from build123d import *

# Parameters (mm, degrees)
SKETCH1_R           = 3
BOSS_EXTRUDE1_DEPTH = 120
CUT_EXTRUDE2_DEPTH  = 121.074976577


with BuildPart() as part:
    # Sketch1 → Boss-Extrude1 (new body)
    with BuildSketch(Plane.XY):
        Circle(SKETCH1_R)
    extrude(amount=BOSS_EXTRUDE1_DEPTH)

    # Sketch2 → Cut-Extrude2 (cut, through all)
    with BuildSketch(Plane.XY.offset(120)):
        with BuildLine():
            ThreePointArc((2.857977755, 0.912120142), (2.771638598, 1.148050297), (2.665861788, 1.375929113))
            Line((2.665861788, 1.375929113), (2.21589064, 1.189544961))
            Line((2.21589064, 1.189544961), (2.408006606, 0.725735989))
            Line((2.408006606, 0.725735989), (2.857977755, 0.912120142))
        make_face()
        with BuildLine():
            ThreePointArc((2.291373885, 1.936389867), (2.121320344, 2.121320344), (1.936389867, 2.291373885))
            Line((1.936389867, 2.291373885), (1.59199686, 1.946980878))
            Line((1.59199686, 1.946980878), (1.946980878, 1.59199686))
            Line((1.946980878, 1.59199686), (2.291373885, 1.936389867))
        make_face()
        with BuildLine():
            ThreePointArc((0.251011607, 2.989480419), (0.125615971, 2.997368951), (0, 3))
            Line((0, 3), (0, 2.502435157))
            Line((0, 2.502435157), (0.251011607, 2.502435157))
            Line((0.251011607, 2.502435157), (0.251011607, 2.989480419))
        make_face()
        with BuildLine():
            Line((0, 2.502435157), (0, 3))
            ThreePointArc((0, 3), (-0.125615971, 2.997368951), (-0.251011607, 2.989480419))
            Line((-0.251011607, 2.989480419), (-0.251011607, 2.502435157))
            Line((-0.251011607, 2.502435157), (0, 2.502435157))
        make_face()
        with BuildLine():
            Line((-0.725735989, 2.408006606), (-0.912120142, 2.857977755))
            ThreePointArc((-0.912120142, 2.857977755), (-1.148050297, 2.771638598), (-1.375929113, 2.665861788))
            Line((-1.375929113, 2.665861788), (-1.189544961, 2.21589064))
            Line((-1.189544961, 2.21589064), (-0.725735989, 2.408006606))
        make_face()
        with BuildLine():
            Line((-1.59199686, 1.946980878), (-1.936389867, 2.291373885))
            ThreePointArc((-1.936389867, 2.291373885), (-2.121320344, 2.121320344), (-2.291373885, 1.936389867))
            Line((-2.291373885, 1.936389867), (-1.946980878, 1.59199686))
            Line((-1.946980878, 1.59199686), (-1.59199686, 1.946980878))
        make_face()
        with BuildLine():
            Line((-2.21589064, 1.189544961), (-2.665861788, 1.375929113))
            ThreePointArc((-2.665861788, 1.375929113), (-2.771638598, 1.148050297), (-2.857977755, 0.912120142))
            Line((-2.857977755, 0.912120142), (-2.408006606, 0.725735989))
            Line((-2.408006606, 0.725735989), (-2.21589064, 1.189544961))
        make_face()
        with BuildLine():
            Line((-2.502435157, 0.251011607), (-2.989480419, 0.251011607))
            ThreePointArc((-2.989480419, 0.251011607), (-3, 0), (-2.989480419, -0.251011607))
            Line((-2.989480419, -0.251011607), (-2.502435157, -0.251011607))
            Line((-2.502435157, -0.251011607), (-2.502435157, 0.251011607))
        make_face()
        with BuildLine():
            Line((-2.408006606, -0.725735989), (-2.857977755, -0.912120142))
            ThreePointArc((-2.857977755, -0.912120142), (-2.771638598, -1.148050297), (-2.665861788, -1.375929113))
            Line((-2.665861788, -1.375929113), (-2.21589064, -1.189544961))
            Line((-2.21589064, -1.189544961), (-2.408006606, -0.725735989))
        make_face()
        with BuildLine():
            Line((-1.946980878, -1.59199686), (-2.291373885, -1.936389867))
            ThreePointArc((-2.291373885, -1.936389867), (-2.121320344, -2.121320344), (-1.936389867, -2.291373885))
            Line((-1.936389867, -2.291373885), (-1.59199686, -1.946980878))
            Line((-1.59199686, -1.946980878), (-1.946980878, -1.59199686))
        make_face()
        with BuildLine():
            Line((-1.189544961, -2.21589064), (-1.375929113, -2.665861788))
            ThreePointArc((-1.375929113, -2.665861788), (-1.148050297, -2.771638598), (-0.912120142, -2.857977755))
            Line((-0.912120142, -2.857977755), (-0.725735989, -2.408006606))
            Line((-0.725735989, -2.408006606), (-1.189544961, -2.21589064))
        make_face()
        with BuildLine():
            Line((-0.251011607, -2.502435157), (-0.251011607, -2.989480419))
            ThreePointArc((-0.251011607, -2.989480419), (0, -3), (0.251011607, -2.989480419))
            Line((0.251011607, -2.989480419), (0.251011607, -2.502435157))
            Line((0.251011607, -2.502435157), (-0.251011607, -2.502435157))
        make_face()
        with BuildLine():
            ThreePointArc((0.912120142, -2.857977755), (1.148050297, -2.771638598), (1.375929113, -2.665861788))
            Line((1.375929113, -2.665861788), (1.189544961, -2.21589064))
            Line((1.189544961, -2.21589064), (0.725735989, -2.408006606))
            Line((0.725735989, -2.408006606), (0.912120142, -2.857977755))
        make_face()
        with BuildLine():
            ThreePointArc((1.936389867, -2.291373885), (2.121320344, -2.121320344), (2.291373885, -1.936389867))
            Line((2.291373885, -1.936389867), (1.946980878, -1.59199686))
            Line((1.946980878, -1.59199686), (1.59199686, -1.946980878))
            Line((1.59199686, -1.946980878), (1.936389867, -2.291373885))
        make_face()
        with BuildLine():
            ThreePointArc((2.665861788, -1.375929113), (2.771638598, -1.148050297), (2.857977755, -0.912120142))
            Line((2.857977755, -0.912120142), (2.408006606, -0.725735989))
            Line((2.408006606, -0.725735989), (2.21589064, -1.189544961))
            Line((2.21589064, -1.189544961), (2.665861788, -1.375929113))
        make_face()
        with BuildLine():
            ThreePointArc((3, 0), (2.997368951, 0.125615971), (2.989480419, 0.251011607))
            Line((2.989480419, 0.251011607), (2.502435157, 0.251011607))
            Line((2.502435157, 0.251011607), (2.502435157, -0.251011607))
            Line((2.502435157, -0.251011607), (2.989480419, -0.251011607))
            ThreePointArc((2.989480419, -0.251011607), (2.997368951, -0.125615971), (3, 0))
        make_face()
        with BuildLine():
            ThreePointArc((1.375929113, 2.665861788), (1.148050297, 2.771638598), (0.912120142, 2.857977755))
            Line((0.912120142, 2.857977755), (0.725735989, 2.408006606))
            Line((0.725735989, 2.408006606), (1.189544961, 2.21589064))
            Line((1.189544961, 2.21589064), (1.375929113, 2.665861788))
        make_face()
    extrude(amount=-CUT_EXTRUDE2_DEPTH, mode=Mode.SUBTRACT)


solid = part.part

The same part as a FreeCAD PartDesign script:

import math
import FreeCAD as App
import Part
import Sketcher

V = App.Vector
Q = App.Units.Quantity

doc = App.newDocument("Part")
params = doc.addObject("Spreadsheet::Sheet", "Params")
for row, (alias, value) in enumerate([
    ("sketch1_diameter", "6 mm"),
    ("pad1_length", "120 mm"),
    ("sketch2_radius", "3 mm"),
], start=1):
    params.set(f"A{row}", alias)
    params.set(f"B{row}", "=" + value)
    params.setAlias(f"B{row}", alias)

body = doc.addObject("PartDesign::Body", "Body")

sketch1 = body.newObject("Sketcher::SketchObject", "Sketch")
sketch1.AttachmentSupport = (doc.getObject("XY_Plane"), [""])
sketch1.MapMode = "FlatFace"
sketch1.addGeometry(Part.Circle(V(0, 0, 0), V(0, 0, 1), 3), False)
sketch1.addConstraint([
    Sketcher.Constraint("Coincident", 0, 3, -1, 1),
    Sketcher.Constraint("Diameter", 0, Q("6 mm")),
])
sketch1.setExpression("Constraints[1]", "Params.sketch1_diameter")
pad1 = body.newObject("PartDesign::Pad", "Pad")
pad1.Profile = sketch1
pad1.setExpression("Length", "Params.pad1_length")

sketch2 = body.newObject("Sketcher::SketchObject", "Sketch001")
sketch2.AttachmentSupport = (doc.getObject("XY_Plane"), [""])
sketch2.MapMode = "FlatFace"
sketch2.AttachmentOffset = App.Placement(V(0, 0, 120), App.Rotation())
sketch2.addGeometry([
    Part.ArcOfCircle(Part.Circle(V(0, 0, 0), V(0, 0, 1), 3), math.radians(17.70042), math.radians(27.29958)),
    Part.LineSegment(V(2.665862, 1.375929, 0), V(2.215891, 1.189545, 0)),
    Part.LineSegment(V(2.215891, 1.189545, 0), V(2.408007, 0.725736, 0)),
    Part.LineSegment(V(2.408007, 0.725736, 0), V(2.857978, 0.91212, 0)),
    Part.ArcOfCircle(Part.Circle(V(0, 0, 0), V(0, 0, 1), 3), math.radians(40.20042), math.radians(49.79958)),
    Part.LineSegment(V(1.93639, 2.291374, 0), V(1.591997, 1.946981, 0)),
    Part.LineSegment(V(1.591997, 1.946981, 0), V(1.946981, 1.591997, 0)),
    Part.LineSegment(V(1.946981, 1.591997, 0), V(2.291374, 1.93639, 0)),
    Part.ArcOfCircle(Part.Circle(V(0, 0, 0), V(0, 0, 1), 3), math.radians(85.20042), math.radians(90)),
    Part.ArcOfCircle(Part.Circle(V(0, 0, 0), V(0, 0, 1), 3), math.radians(90), math.radians(94.79958)),
    Part.LineSegment(V(-0.251012, 2.98948, 0), V(-0.251012, 2.502435, 0)),
    Part.LineSegment(V(-0.251012, 2.502435, 0), V(0.251012, 2.502435, 0)),
    Part.LineSegment(V(0.251012, 2.502435, 0), V(0.251012, 2.98948, 0)),
    Part.LineSegment(V(-0.725736, 2.408007, 0), V(-0.91212, 2.857978, 0)),
    Part.ArcOfCircle(Part.Circle(V(0, 0, 0), V(0, 0, 1), 3), math.radians(107.70042), math.radians(117.29958)),
    Part.LineSegment(V(-1.375929, 2.665862, 0), V(-1.189545, 2.215891, 0)),
    Part.LineSegment(V(-1.189545, 2.215891, 0), V(-0.725736, 2.408007, 0)),
    Part.LineSegment(V(-1.591997, 1.946981, 0), V(-1.93639, 2.291374, 0)),
    Part.ArcOfCircle(Part.Circle(V(0, 0, 0), V(0, 0, 1), 3), math.radians(130.20042), math.radians(139.79958)),
    Part.LineSegment(V(-2.291374, 1.93639, 0), V(-1.946981, 1.591997, 0)),
    Part.LineSegment(V(-1.946981, 1.591997, 0), V(-1.591997, 1.946981, 0)),
    Part.LineSegment(V(-2.215891, 1.189545, 0), V(-2.665862, 1.375929, 0)),
    Part.ArcOfCircle(Part.Circle(V(0, 0, 0), V(0, 0, 1), 3), math.radians(152.70042), math.radians(162.29958)),
    Part.LineSegment(V(-2.857978, 0.91212, 0), V(-2.408007, 0.725736, 0)),
    Part.LineSegment(V(-2.408007, 0.725736, 0), V(-2.215891, 1.189545, 0)),
    Part.LineSegment(V(-2.502435, 0.251012, 0), V(-2.98948, 0.251012, 0)),
    Part.ArcOfCircle(Part.Circle(V(0, 0, 0), V(0, 0, 1), 3), math.radians(175.20042), math.radians(184.79958)),
    Part.LineSegment(V(-2.98948, -0.251012, 0), V(-2.502435, -0.251012, 0)),
    Part.LineSegment(V(-2.502435, -0.251012, 0), V(-2.502435, 0.251012, 0)),
    Part.LineSegment(V(-2.408007, -0.725736, 0), V(-2.857978, -0.91212, 0)),
    Part.ArcOfCircle(Part.Circle(V(0, 0, 0), V(0, 0, 1), 3), math.radians(-162.29958), math.radians(-152.70042)),
    Part.LineSegment(V(-2.665862, -1.375929, 0), V(-2.215891, -1.189545, 0)),
    Part.LineSegment(V(-2.215891, -1.189545, 0), V(-2.408007, -0.725736, 0)),
    Part.LineSegment(V(-1.946981, -1.591997, 0), V(-2.291374, -1.93639, 0)),
    Part.ArcOfCircle(Part.Circle(V(0, 0, 0), V(0, 0, 1), 3), math.radians(-139.79958), math.radians(-130.20042)),
    Part.LineSegment(V(-1.93639, -2.291374, 0), V(-1.591997, -1.946981, 0)),
    Part.LineSegment(V(-1.591997, -1.946981, 0), V(-1.946981, -1.591997, 0)),
    Part.LineSegment(V(-1.189545, -2.215891, 0), V(-1.375929, -2.665862, 0)),
    Part.ArcOfCircle(Part.Circle(V(0, 0, 0), V(0, 0, 1), 3), math.radians(-117.29958), math.radians(-107.70042)),
    Part.LineSegment(V(-0.91212, -2.857978, 0), V(-0.725736, -2.408007, 0)),
    Part.LineSegment(V(-0.725736, -2.408007, 0), V(-1.189545, -2.215891, 0)),
    Part.LineSegment(V(-0.251012, -2.502435, 0), V(-0.251012, -2.98948, 0)),
    Part.ArcOfCircle(Part.Circle(V(0, 0, 0), V(0, 0, 1), 3), math.radians(-94.79958), math.radians(-85.20042)),
    Part.LineSegment(V(0.251012, -2.98948, 0), V(0.251012, -2.502435, 0)),
    Part.LineSegment(V(0.251012, -2.502435, 0), V(-0.251012, -2.502435, 0)),
    Part.ArcOfCircle(Part.Circle(V(0, 0, 0), V(0, 0, 1), 3), math.radians(-72.29958), math.radians(-62.70042)),
    Part.LineSegment(V(1.375929, -2.665862, 0), V(1.189545, -2.215891, 0)),
    Part.LineSegment(V(1.189545, -2.215891, 0), V(0.725736, -2.408007, 0)),
    Part.LineSegment(V(0.725736, -2.408007, 0), V(0.91212, -2.857978, 0)),
    Part.ArcOfCircle(Part.Circle(V(0, 0, 0), V(0, 0, 1), 3), math.radians(-49.79958), math.radians(-40.20042)),
    Part.LineSegment(V(2.291374, -1.93639, 0), V(1.946981, -1.591997, 0)),
    Part.LineSegment(V(1.946981, -1.591997, 0), V(1.591997, -1.946981, 0)),
    Part.LineSegment(V(1.591997, -1.946981, 0), V(1.93639, -2.291374, 0)),
    Part.ArcOfCircle(Part.Circle(V(0, 0, 0), V(0, 0, 1), 3), math.radians(-27.29958), math.radians(-17.70042)),
    Part.LineSegment(V(2.857978, -0.91212, 0), V(2.408007, -0.725736, 0)),
    Part.LineSegment(V(2.408007, -0.725736, 0), V(2.215891, -1.189545, 0)),
    Part.LineSegment(V(2.215891, -1.189545, 0), V(2.665862, -1.375929, 0)),
    Part.ArcOfCircle(Part.Circle(V(0, 0, 0), V(0, 0, 1), 3), math.radians(0), math.radians(4.79958)),
    Part.LineSegment(V(2.98948, 0.251012, 0), V(2.502435, 0.251012, 0)),
    Part.LineSegment(V(2.502435, 0.251012, 0), V(2.502435, -0.251012, 0)),
    Part.LineSegment(V(2.502435, -0.251012, 0), V(2.98948, -0.251012, 0)),
    Part.ArcOfCircle(Part.Circle(V(0, 0, 0), V(0, 0, 1), 3), math.radians(-4.79958), math.radians(0)),
    Part.ArcOfCircle(Part.Circle(V(0, 0, 0), V(0, 0, 1), 3), math.radians(62.70042), math.radians(72.29958)),
    Part.LineSegment(V(0.91212, 2.857978, 0), V(0.725736, 2.408007, 0)),
    Part.LineSegment(V(0.725736, 2.408007, 0), V(1.189545, 2.215891, 0)),
    Part.LineSegment(V(1.189545, 2.215891, 0), V(1.375929, 2.665862, 0)),
], False)
sketch2.addConstraint([
    Sketcher.Constraint("Coincident", 0, 2, 1, 1),
    Sketcher.Constraint("Coincident", 1, 2, 2, 1),
    Sketcher.Constraint("Coincident", 2, 2, 3, 1),
    Sketcher.Constraint("Coincident", 3, 2, 0, 1),
    Sketcher.Constraint("Coincident", 4, 2, 5, 1),
    Sketcher.Constraint("Coincident", 5, 2, 6, 1),
    Sketcher.Constraint("Coincident", 6, 2, 7, 1),
    Sketcher.Constraint("Coincident", 7, 2, 4, 1),
    Sketcher.Constraint("Tangent", 8, 2, 9, 1),
    Sketcher.Constraint("Coincident", 9, 2, 10, 1),
    Sketcher.Constraint("Coincident", 10, 2, 11, 1),
    Sketcher.Constraint("Coincident", 11, 2, 12, 1),
    Sketcher.Constraint("Coincident", 12, 2, 8, 1),
    Sketcher.Constraint("Coincident", 13, 2, 14, 1),
    Sketcher.Constraint("Coincident", 14, 2, 15, 1),
    Sketcher.Constraint("Coincident", 15, 2, 16, 1),
    Sketcher.Constraint("Coincident", 16, 2, 13, 1),
    Sketcher.Constraint("Coincident", 17, 2, 18, 1),
    Sketcher.Constraint("Coincident", 18, 2, 19, 1),
    Sketcher.Constraint("Coincident", 19, 2, 20, 1),
    Sketcher.Constraint("Coincident", 20, 2, 17, 1),
    Sketcher.Constraint("Coincident", 21, 2, 22, 1),
    Sketcher.Constraint("Coincident", 22, 2, 23, 1),
    Sketcher.Constraint("Coincident", 23, 2, 24, 1),
    Sketcher.Constraint("Coincident", 24, 2, 21, 1),
    Sketcher.Constraint("Coincident", 25, 2, 26, 1),
    Sketcher.Constraint("Coincident", 26, 2, 27, 1),
    Sketcher.Constraint("Coincident", 27, 2, 28, 1),
    Sketcher.Constraint("Coincident", 28, 2, 25, 1),
    Sketcher.Constraint("Coincident", 29, 2, 30, 1),
    Sketcher.Constraint("Coincident", 30, 2, 31, 1),
    Sketcher.Constraint("Coincident", 31, 2, 32, 1),
    Sketcher.Constraint("Coincident", 32, 2, 29, 1),
    Sketcher.Constraint("Coincident", 33, 2, 34, 1),
    Sketcher.Constraint("Coincident", 34, 2, 35, 1),
    Sketcher.Constraint("Coincident", 35, 2, 36, 1),
    Sketcher.Constraint("Coincident", 36, 2, 33, 1),
    Sketcher.Constraint("Coincident", 37, 2, 38, 1),
    Sketcher.Constraint("Coincident", 38, 2, 39, 1),
    Sketcher.Constraint("Coincident", 39, 2, 40, 1),
    Sketcher.Constraint("Coincident", 40, 2, 37, 1),
    Sketcher.Constraint("Coincident", 41, 2, 42, 1),
    Sketcher.Constraint("Coincident", 42, 2, 43, 1),
    Sketcher.Constraint("Coincident", 43, 2, 44, 1),
    Sketcher.Constraint("Coincident", 44, 2, 41, 1),
    Sketcher.Constraint("Coincident", 45, 2, 46, 1),
    Sketcher.Constraint("Coincident", 46, 2, 47, 1),
    Sketcher.Constraint("Coincident", 47, 2, 48, 1),
    Sketcher.Constraint("Coincident", 48, 2, 45, 1),
    Sketcher.Constraint("Coincident", 49, 2, 50, 1),
    Sketcher.Constraint("Coincident", 50, 2, 51, 1),
    Sketcher.Constraint("Coincident", 51, 2, 52, 1),
    Sketcher.Constraint("Coincident", 52, 2, 49, 1),
    Sketcher.Constraint("Coincident", 53, 2, 54, 1),
    Sketcher.Constraint("Coincident", 54, 2, 55, 1),
    Sketcher.Constraint("Coincident", 55, 2, 56, 1),
    Sketcher.Constraint("Coincident", 56, 2, 53, 1),
    Sketcher.Constraint("Coincident", 57, 2, 58, 1),
    Sketcher.Constraint("Coincident", 58, 2, 59, 1),
    Sketcher.Constraint("Coincident", 59, 2, 60, 1),
    Sketcher.Constraint("Coincident", 60, 2, 61, 1),
    Sketcher.Constraint("Tangent", 61, 2, 57, 1),
    Sketcher.Constraint("Coincident", 62, 2, 63, 1),
    Sketcher.Constraint("Coincident", 63, 2, 64, 1),
    Sketcher.Constraint("Coincident", 64, 2, 65, 1),
    Sketcher.Constraint("Coincident", 65, 2, 62, 1),
    Sketcher.Constraint("Vertical", 10),
    Sketcher.Constraint("Horizontal", 11),
    Sketcher.Constraint("Vertical", 12),
    Sketcher.Constraint("Horizontal", 25),
    Sketcher.Constraint("Horizontal", 27),
    Sketcher.Constraint("Vertical", 28),
    Sketcher.Constraint("Vertical", 41),
    Sketcher.Constraint("Vertical", 43),
    Sketcher.Constraint("Horizontal", 44),
    Sketcher.Constraint("Horizontal", 58),
    Sketcher.Constraint("Vertical", 59),
    Sketcher.Constraint("Horizontal", 60),
    Sketcher.Constraint("Coincident", 0, 3, -1, 1),
    Sketcher.Constraint("Coincident", 4, 3, -1, 1),
    Sketcher.Constraint("Coincident", 8, 3, -1, 1),
    Sketcher.Constraint("Coincident", 14, 3, -1, 1),
    Sketcher.Constraint("Coincident", 18, 3, -1, 1),
    Sketcher.Constraint("Coincident", 22, 3, -1, 1),
    Sketcher.Constraint("Coincident", 26, 3, -1, 1),
    Sketcher.Constraint("Coincident", 30, 3, -1, 1),
    Sketcher.Constraint("Coincident", 34, 3, -1, 1),
    Sketcher.Constraint("Coincident", 38, 3, -1, 1),
    Sketcher.Constraint("Coincident", 42, 3, -1, 1),
    Sketcher.Constraint("Coincident", 45, 3, -1, 1),
    Sketcher.Constraint("Coincident", 49, 3, -1, 1),
    Sketcher.Constraint("Coincident", 53, 3, -1, 1),
    Sketcher.Constraint("Coincident", 57, 3, -1, 1),
    Sketcher.Constraint("Coincident", 62, 3, -1, 1),
    Sketcher.Constraint("Equal", 0, 4),
    Sketcher.Constraint("Equal", 4, 8),
    Sketcher.Constraint("Equal", 8, 9),
    Sketcher.Constraint("Equal", 9, 14),
    Sketcher.Constraint("Equal", 14, 18),
    Sketcher.Constraint("Equal", 18, 22),
    Sketcher.Constraint("Equal", 22, 26),
    Sketcher.Constraint("Equal", 26, 30),
    Sketcher.Constraint("Equal", 30, 34),
    Sketcher.Constraint("Equal", 34, 38),
    Sketcher.Constraint("Equal", 38, 42),
    Sketcher.Constraint("Equal", 42, 45),
    Sketcher.Constraint("Equal", 45, 49),
    Sketcher.Constraint("Equal", 49, 53),
    Sketcher.Constraint("Equal", 53, 57),
    Sketcher.Constraint("Equal", 57, 61),
    Sketcher.Constraint("Equal", 61, 62),
    Sketcher.Constraint("Symmetric", 1, 2, 31, 2, -1, 1),
    Sketcher.Constraint("Symmetric", 2, 2, 32, 2, -1, 1),
    Sketcher.Constraint("Symmetric", 5, 2, 35, 2, -1, 1),
    Sketcher.Constraint("Symmetric", 6, 2, 36, 2, -1, 1),
    Sketcher.Constraint("Symmetric", 10, 2, 43, 2, -1, 1),
    Sketcher.Constraint("Symmetric", 15, 2, 46, 2, -1, 1),
    Sketcher.Constraint("Symmetric", 16, 2, 47, 2, -1, 1),
    Sketcher.Constraint("Symmetric", 19, 2, 50, 2, -1, 1),
    Sketcher.Constraint("Symmetric", 20, 2, 51, 2, -1, 1),
    Sketcher.Constraint("Symmetric", 23, 2, 54, 2, -1, 1),
    Sketcher.Constraint("Symmetric", 24, 2, 55, 2, -1, 1),
    Sketcher.Constraint("Symmetric", 27, 2, 58, 2, -1, 1),
    Sketcher.Constraint("Symmetric", 39, 2, 63, 2, -1, 1),
    Sketcher.Constraint("Symmetric", 40, 2, 64, 2, -1, 1),
    Sketcher.Constraint("Symmetric", 6, 2, 19, 2, -2),
    Sketcher.Constraint("Symmetric", 5, 2, 20, 2, -2),
    Sketcher.Constraint("Symmetric", 2, 2, 23, 2, -2),
    Sketcher.Constraint("Symmetric", 1, 2, 24, 2, -2),
    Sketcher.Constraint("Symmetric", 40, 2, 46, 2, -2),
    Sketcher.Constraint("Symmetric", 39, 2, 47, 2, -2),
    Sketcher.Constraint("PointOnObject", 8, 2, -2),
    Sketcher.Constraint("PointOnObject", 61, 2, -1),
    Sketcher.Constraint("Perpendicular", 1, 2),
    Sketcher.Constraint("Perpendicular", 2, 3),
    Sketcher.Constraint("Perpendicular", 5, 6),
    Sketcher.Constraint("Perpendicular", 6, 7),
    Sketcher.Constraint("Perpendicular", 3, 13),
    Sketcher.Constraint("Parallel", 13, 15),
    Sketcher.Constraint("Perpendicular", 15, 16),
    Sketcher.Constraint("Perpendicular", 7, 17),
    Sketcher.Constraint("Parallel", 17, 19),
    Sketcher.Constraint("Perpendicular", 19, 20),
    Sketcher.Constraint("Parallel", 21, 23),
    Sketcher.Constraint("Perpendicular", 23, 24),
    Sketcher.Constraint("Parallel", 16, 29),
    Sketcher.Constraint("Parallel", 29, 31),
    Sketcher.Constraint("Parallel", 20, 33),
    Sketcher.Constraint("Parallel", 33, 35),
    Sketcher.Constraint("Parallel", 24, 37),
    Sketcher.Constraint("Parallel", 37, 39),
    Sketcher.Constraint("Parallel", 32, 46),
    Sketcher.Constraint("Perpendicular", 47, 48),
    Sketcher.Constraint("Parallel", 36, 50),
    Sketcher.Constraint("Perpendicular", 51, 52),
    Sketcher.Constraint("Parallel", 40, 54),
    Sketcher.Constraint("Perpendicular", 55, 56),
    Sketcher.Constraint("Perpendicular", 56, 63),
    Sketcher.Constraint("Perpendicular", 64, 65),
    Sketcher.Constraint("Horizontal", 9, 2, 12, 2),
    Sketcher.Constraint("Horizontal", 41, 2, 42, 2),
    Sketcher.Constraint("Horizontal", 28, 2, 57, 2),
    Sketcher.Constraint("Horizontal", 27, 2, 59, 2),
    Sketcher.Constraint("Equal", 60, 10),
    Sketcher.Constraint("Equal", 44, 28),
    Sketcher.Constraint("Equal", 1, 3),
    Sketcher.Constraint("Equal", 3, 5),
    Sketcher.Constraint("Equal", 2, 6),
    Sketcher.Constraint("Equal", 5, 7),
    Sketcher.Constraint("Equal", 7, 13),
    Sketcher.Constraint("Equal", 13, 15),
    Sketcher.Constraint("Equal", 6, 16),
    Sketcher.Constraint("Radius", 0, Q("3 mm")),
    Sketcher.Constraint("Angle", 1, Q("-157.5 deg")),
    Sketcher.Constraint("DistanceX", 11, 1, 11, 2, Q("0.502023 mm")),
    Sketcher.Constraint("DistanceX", 25, 2, 25, 1, Q("0.487045 mm")),
    Sketcher.Constraint("DistanceX", -1, 1, 0, 2, Q("2.665862 mm")),
    Sketcher.Constraint("DistanceX", -1, 1, 1, 2, Q("2.215891 mm")),
])
sketch2.setExpression("Constraints[172]", "Params.sketch2_radius")
pocket1 = body.newObject("PartDesign::Pocket", "Pocket")
pocket1.Profile = sketch2
pocket1.Type = "ThroughAll"

doc.recompute()
